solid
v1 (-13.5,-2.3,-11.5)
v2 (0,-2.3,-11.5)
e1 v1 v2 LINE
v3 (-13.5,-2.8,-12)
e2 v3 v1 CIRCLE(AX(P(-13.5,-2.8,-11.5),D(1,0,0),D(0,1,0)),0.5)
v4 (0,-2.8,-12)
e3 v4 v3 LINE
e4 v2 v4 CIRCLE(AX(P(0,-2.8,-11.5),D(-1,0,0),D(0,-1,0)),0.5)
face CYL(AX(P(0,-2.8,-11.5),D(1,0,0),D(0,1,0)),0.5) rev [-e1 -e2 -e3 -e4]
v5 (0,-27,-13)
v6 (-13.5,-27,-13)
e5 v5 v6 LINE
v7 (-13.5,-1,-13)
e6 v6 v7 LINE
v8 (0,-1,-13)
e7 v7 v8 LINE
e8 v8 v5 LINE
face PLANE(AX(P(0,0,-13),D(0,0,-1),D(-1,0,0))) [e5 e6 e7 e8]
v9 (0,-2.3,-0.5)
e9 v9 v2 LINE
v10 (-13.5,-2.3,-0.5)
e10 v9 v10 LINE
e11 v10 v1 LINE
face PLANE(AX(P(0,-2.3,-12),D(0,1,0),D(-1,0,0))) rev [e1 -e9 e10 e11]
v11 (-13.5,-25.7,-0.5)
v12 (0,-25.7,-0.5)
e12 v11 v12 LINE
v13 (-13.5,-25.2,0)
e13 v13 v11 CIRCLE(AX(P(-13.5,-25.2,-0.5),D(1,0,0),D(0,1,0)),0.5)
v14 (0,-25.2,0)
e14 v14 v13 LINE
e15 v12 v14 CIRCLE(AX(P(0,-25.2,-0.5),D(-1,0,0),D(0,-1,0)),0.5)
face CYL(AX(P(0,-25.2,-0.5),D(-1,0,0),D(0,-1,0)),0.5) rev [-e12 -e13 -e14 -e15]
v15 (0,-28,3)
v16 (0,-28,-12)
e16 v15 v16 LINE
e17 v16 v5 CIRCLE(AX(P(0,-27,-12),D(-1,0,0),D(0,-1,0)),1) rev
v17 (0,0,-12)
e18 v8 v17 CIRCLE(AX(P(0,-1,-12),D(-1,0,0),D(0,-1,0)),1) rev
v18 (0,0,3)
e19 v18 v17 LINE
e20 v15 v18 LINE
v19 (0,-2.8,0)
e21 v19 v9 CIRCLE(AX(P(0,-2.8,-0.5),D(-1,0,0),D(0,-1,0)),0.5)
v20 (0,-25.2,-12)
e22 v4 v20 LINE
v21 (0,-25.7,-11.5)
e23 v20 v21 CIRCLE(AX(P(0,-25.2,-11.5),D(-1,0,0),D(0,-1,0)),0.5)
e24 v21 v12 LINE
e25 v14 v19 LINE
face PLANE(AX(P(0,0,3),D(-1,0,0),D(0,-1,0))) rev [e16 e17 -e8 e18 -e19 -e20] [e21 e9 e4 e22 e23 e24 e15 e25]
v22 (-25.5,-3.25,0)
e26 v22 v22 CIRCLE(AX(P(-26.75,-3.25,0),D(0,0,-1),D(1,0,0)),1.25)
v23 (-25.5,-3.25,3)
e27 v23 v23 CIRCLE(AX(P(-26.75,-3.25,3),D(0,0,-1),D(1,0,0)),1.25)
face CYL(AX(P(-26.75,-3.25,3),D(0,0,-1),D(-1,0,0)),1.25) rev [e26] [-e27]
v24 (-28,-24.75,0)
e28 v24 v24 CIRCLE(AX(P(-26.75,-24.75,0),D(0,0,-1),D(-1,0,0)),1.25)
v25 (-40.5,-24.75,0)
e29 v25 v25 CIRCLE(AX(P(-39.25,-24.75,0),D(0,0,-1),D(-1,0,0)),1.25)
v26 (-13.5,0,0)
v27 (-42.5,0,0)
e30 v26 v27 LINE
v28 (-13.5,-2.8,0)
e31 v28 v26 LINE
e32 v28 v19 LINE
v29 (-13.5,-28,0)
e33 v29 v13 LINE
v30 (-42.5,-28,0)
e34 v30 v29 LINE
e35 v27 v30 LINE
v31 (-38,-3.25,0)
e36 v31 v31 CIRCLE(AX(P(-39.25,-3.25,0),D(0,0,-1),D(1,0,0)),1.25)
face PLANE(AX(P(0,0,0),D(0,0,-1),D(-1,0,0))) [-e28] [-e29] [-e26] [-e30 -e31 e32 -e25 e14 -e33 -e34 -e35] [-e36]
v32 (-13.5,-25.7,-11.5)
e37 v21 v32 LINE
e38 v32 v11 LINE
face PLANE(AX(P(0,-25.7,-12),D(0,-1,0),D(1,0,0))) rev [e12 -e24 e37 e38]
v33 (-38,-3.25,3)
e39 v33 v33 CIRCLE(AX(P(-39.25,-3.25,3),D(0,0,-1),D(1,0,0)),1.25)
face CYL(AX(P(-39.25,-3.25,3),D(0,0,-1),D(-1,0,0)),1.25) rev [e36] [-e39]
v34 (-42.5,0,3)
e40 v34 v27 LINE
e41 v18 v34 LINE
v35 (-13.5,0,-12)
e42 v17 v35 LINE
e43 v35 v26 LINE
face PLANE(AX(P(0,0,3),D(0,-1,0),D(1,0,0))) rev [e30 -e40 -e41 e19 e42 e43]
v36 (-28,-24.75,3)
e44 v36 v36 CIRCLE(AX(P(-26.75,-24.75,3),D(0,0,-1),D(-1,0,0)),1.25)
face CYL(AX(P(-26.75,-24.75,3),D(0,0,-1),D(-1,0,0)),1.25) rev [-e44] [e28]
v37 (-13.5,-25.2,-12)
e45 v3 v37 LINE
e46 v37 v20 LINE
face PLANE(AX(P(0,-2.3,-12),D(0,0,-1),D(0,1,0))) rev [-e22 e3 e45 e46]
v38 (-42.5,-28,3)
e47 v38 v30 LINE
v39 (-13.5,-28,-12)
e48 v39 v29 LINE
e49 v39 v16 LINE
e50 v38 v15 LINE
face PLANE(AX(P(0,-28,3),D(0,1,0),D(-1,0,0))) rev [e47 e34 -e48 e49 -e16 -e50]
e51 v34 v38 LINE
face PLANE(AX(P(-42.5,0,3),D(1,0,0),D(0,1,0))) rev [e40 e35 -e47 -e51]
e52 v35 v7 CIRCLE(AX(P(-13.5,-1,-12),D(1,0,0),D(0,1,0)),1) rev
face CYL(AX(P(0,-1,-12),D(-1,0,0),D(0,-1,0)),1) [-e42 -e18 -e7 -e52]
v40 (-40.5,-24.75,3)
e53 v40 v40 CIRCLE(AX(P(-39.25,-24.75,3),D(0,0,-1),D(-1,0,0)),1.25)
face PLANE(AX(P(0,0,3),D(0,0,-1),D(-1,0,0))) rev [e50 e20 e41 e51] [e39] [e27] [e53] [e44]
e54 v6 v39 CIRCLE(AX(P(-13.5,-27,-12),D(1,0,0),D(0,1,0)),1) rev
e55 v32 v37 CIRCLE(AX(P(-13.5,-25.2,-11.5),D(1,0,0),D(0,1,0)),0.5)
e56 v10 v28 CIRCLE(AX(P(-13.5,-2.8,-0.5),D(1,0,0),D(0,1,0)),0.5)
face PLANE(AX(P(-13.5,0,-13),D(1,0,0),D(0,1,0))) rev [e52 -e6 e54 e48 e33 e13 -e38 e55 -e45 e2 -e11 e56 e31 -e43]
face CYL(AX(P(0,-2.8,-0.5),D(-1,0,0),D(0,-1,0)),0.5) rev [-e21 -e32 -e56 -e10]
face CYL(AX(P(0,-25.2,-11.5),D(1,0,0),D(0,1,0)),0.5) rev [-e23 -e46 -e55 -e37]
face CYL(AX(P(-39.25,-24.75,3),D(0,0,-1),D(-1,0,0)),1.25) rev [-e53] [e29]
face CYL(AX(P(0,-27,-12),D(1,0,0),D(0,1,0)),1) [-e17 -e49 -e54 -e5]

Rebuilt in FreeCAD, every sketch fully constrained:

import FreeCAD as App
import Part
import Sketcher
from FreeCAD import Vector
Q = App.Units.Quantity


def edges_at(feature, points):
    """Names of the edges that pass closest to the given points."""
    edges = feature.Shape.Edges
    near = lambda p: min(range(len(edges)), key=lambda i: edges[i].distToShape(Part.Vertex(*p))[0])
    return sorted({f"Edge{near(p) + 1}" for p in points})

doc = App.newDocument("Part")
body = doc.addObject("PartDesign::Body", "Body")

sketch1 = body.newObject("Sketcher::SketchObject", "Sketch")
sketch1.AttachmentSupport = (doc.getObject("XY_Plane"), [""])
sketch1.MapMode = "FlatFace"
sketch1.addGeometry([
    Part.LineSegment(Vector(-42.5, 0, 0), Vector(-42.5, -28, 0)),
    Part.LineSegment(Vector(-42.5, -28, 0), Vector(0, -28, 0)),
    Part.LineSegment(Vector(0, -28, 0), Vector(0, 0, 0)),
    Part.LineSegment(Vector(0, 0, 0), Vector(-42.5, 0, 0)),
], False)
sketch1.addConstraint([
    Sketcher.Constraint("Coincident", 0, 2, 1, 1),
    Sketcher.Constraint("Coincident", 1, 2, 2, 1),
    Sketcher.Constraint("Coincident", 2, 2, 3, 1),
    Sketcher.Constraint("Coincident", 3, 2, 0, 1),
    Sketcher.Constraint("Vertical", 0),
    Sketcher.Constraint("Horizontal", 1),
    Sketcher.Constraint("Vertical", 2),
    Sketcher.Constraint("Horizontal", 3),
    Sketcher.Constraint("Coincident", 2, 2, -1, 1),
    Sketcher.Constraint("DistanceY", 0, 2, 0, 1, Q("28 mm")),
    Sketcher.Constraint("DistanceX", 1, 1, 1, 2, Q("42.5 mm")),
])
pad1 = body.newObject("PartDesign::Pad", "Pad")
pad1.Profile = sketch1
pad1.Length = 3

sketch2 = body.newObject("Sketcher::SketchObject", "Sketch001")
sketch2.AttachmentSupport = (doc.getObject("XY_Plane"), [""])
sketch2.MapMode = "FlatFace"
sketch2.addGeometry([
    Part.Circle(Vector(-39.25, -24.75, 0), Vector(0, 0, 1), 1.25),
    Part.Circle(Vector(-26.75, -24.75, 0), Vector(0, 0, 1), 1.25),
    Part.Circle(Vector(-39.25, -3.25, 0), Vector(0, 0, 1), 1.25),
    Part.Circle(Vector(-26.75, -3.25, 0), Vector(0, 0, 1), 1.25),
], False)
sketch2.addConstraint([
    Sketcher.Constraint("Equal", 0, 1),
    Sketcher.Constraint("Equal", 1, 2),
    Sketcher.Constraint("Equal", 2, 3),
    Sketcher.Constraint("Horizontal", 0, 3, 1, 3),
    Sketcher.Constraint("Horizontal", 2, 3, 3, 3),
    Sketcher.Constraint("Vertical", 0, 3, 2, 3),
    Sketcher.Constraint("Vertical", 1, 3, 3, 3),
    Sketcher.Constraint("Diameter", 0, Q("2.5 mm")),
    Sketcher.Constraint("DistanceX", 0, 3, 1, 3, Q("12.5 mm")),
    Sketcher.Constraint("DistanceY", 0, 3, 2, 3, Q("21.5 mm")),
    Sketcher.Constraint("DistanceX", 0, 3, -1, 1, Q("39.25 mm")),
    Sketcher.Constraint("DistanceY", 0, 3, -1, 1, Q("24.75 mm")),
])
pocket1 = body.newObject("PartDesign::Pocket", "Pocket")
pocket1.Profile = sketch2
pocket1.Length = 3
pocket1.Reversed = True

sketch3 = body.newObject("Sketcher::SketchObject", "Sketch002")
sketch3.AttachmentSupport = (doc.getObject("XY_Plane"), [""])
sketch3.MapMode = "FlatFace"
sketch3.addGeometry([
    Part.LineSegment(Vector(0, 0, 0), Vector(0, -28, 0)),
    Part.LineSegment(Vector(0, -28, 0), Vector(-13.5, -28, 0)),
    Part.LineSegment(Vector(-13.5, -28, 0), Vector(-13.5, 0, 0)),
    Part.LineSegment(Vector(-13.5, 0, 0), Vector(0, 0, 0)),
], False)
sketch3.addConstraint([
    Sketcher.Constraint("Coincident", 0, 2, 1, 1),
    Sketcher.Constraint("Coincident", 1, 2, 2, 1),
    Sketcher.Constraint("Coincident", 2, 2, 3, 1),
    Sketcher.Constraint("Coincident", 3, 2, 0, 1),
    Sketcher.Constraint("Vertical", 0),
    Sketcher.Constraint("Horizontal", 1),
    Sketcher.Constraint("Vertical", 2),
    Sketcher.Constraint("Horizontal", 3),
    Sketcher.Constraint("Coincident", 3, 2, -1, 1),
    Sketcher.Constraint("DistanceY", 0, 2, 0, 1, Q("28 mm")),
    Sketcher.Constraint("DistanceX", 1, 2, 1, 1, Q("13.5 mm")),
])
pad2 = body.newObject("PartDesign::Pad", "Pad001")
pad2.Profile = sketch3
pad2.Length = 13
pad2.Reversed = True

sketch4 = body.newObject("Sketcher::SketchObject", "Sketch003")
sketch4.AttachmentSupport = (doc.getObject("YZ_Plane"), [""])
sketch4.MapMode = "FlatFace"
sketch4.AttachmentOffset = App.Placement(Vector(0, 0, -13.5), App.Rotation())
sketch4.addGeometry([
    Part.LineSegment(Vector(-2.3, -12, 0), Vector(-25.7, -12, 0)),
    Part.LineSegment(Vector(-25.7, -12, 0), Vector(-25.7, 0, 0)),
    Part.LineSegment(Vector(-25.7, 0, 0), Vector(-2.3, 0, 0)),
    Part.LineSegment(Vector(-2.3, 0, 0), Vector(-2.3, -12, 0)),
], False)
sketch4.addConstraint([
    Sketcher.Constraint("Coincident", 0, 2, 1, 1),
    Sketcher.Constraint("Coincident", 1, 2, 2, 1),
    Sketcher.Constraint("Coincident", 2, 2, 3, 1),
    Sketcher.Constraint("Coincident", 3, 2, 0, 1),
    Sketcher.Constraint("Horizontal", 0),
    Sketcher.Constraint("Vertical", 1),
    Sketcher.Constraint("Horizontal", 2),
    Sketcher.Constraint("Vertical", 3),
    Sketcher.Constraint("PointOnObject", 1, 2, -1),
    Sketcher.Constraint("DistanceY", 1, 1, 1, 2, Q("12 mm")),
    Sketcher.Constraint("DistanceX", 0, 2, 0, 1, Q("23.4 mm")),
    Sketcher.Constraint("DistanceX", 0, 2, -1, 1, Q("25.7 mm")),
])
pocket2 = body.newObject("PartDesign::Pocket", "Pocket001")
pocket2.Profile = sketch4
pocket2.Type = "ThroughAll"
pocket2.Reversed = True
doc.recompute()

fillet = body.newObject("PartDesign::Fillet", "Fillet")
fillet.Base = (pocket2, edges_at(pocket2, [
    (-6.75, -25.7, -12),
    (-6.75, -2.3, -12),
    (-6.75, -2.3, 0),
    (-6.75, -25.7, 0),
]))
fillet.Radius = 0.5
doc.recompute()

fillet2 = body.newObject("PartDesign::Fillet", "Fillet001")
fillet2.Base = (fillet, edges_at(fillet, [(-6.75, -28, -13), (-6.75, 0, -13)]))
fillet2.Radius = 1

doc.recompute()
